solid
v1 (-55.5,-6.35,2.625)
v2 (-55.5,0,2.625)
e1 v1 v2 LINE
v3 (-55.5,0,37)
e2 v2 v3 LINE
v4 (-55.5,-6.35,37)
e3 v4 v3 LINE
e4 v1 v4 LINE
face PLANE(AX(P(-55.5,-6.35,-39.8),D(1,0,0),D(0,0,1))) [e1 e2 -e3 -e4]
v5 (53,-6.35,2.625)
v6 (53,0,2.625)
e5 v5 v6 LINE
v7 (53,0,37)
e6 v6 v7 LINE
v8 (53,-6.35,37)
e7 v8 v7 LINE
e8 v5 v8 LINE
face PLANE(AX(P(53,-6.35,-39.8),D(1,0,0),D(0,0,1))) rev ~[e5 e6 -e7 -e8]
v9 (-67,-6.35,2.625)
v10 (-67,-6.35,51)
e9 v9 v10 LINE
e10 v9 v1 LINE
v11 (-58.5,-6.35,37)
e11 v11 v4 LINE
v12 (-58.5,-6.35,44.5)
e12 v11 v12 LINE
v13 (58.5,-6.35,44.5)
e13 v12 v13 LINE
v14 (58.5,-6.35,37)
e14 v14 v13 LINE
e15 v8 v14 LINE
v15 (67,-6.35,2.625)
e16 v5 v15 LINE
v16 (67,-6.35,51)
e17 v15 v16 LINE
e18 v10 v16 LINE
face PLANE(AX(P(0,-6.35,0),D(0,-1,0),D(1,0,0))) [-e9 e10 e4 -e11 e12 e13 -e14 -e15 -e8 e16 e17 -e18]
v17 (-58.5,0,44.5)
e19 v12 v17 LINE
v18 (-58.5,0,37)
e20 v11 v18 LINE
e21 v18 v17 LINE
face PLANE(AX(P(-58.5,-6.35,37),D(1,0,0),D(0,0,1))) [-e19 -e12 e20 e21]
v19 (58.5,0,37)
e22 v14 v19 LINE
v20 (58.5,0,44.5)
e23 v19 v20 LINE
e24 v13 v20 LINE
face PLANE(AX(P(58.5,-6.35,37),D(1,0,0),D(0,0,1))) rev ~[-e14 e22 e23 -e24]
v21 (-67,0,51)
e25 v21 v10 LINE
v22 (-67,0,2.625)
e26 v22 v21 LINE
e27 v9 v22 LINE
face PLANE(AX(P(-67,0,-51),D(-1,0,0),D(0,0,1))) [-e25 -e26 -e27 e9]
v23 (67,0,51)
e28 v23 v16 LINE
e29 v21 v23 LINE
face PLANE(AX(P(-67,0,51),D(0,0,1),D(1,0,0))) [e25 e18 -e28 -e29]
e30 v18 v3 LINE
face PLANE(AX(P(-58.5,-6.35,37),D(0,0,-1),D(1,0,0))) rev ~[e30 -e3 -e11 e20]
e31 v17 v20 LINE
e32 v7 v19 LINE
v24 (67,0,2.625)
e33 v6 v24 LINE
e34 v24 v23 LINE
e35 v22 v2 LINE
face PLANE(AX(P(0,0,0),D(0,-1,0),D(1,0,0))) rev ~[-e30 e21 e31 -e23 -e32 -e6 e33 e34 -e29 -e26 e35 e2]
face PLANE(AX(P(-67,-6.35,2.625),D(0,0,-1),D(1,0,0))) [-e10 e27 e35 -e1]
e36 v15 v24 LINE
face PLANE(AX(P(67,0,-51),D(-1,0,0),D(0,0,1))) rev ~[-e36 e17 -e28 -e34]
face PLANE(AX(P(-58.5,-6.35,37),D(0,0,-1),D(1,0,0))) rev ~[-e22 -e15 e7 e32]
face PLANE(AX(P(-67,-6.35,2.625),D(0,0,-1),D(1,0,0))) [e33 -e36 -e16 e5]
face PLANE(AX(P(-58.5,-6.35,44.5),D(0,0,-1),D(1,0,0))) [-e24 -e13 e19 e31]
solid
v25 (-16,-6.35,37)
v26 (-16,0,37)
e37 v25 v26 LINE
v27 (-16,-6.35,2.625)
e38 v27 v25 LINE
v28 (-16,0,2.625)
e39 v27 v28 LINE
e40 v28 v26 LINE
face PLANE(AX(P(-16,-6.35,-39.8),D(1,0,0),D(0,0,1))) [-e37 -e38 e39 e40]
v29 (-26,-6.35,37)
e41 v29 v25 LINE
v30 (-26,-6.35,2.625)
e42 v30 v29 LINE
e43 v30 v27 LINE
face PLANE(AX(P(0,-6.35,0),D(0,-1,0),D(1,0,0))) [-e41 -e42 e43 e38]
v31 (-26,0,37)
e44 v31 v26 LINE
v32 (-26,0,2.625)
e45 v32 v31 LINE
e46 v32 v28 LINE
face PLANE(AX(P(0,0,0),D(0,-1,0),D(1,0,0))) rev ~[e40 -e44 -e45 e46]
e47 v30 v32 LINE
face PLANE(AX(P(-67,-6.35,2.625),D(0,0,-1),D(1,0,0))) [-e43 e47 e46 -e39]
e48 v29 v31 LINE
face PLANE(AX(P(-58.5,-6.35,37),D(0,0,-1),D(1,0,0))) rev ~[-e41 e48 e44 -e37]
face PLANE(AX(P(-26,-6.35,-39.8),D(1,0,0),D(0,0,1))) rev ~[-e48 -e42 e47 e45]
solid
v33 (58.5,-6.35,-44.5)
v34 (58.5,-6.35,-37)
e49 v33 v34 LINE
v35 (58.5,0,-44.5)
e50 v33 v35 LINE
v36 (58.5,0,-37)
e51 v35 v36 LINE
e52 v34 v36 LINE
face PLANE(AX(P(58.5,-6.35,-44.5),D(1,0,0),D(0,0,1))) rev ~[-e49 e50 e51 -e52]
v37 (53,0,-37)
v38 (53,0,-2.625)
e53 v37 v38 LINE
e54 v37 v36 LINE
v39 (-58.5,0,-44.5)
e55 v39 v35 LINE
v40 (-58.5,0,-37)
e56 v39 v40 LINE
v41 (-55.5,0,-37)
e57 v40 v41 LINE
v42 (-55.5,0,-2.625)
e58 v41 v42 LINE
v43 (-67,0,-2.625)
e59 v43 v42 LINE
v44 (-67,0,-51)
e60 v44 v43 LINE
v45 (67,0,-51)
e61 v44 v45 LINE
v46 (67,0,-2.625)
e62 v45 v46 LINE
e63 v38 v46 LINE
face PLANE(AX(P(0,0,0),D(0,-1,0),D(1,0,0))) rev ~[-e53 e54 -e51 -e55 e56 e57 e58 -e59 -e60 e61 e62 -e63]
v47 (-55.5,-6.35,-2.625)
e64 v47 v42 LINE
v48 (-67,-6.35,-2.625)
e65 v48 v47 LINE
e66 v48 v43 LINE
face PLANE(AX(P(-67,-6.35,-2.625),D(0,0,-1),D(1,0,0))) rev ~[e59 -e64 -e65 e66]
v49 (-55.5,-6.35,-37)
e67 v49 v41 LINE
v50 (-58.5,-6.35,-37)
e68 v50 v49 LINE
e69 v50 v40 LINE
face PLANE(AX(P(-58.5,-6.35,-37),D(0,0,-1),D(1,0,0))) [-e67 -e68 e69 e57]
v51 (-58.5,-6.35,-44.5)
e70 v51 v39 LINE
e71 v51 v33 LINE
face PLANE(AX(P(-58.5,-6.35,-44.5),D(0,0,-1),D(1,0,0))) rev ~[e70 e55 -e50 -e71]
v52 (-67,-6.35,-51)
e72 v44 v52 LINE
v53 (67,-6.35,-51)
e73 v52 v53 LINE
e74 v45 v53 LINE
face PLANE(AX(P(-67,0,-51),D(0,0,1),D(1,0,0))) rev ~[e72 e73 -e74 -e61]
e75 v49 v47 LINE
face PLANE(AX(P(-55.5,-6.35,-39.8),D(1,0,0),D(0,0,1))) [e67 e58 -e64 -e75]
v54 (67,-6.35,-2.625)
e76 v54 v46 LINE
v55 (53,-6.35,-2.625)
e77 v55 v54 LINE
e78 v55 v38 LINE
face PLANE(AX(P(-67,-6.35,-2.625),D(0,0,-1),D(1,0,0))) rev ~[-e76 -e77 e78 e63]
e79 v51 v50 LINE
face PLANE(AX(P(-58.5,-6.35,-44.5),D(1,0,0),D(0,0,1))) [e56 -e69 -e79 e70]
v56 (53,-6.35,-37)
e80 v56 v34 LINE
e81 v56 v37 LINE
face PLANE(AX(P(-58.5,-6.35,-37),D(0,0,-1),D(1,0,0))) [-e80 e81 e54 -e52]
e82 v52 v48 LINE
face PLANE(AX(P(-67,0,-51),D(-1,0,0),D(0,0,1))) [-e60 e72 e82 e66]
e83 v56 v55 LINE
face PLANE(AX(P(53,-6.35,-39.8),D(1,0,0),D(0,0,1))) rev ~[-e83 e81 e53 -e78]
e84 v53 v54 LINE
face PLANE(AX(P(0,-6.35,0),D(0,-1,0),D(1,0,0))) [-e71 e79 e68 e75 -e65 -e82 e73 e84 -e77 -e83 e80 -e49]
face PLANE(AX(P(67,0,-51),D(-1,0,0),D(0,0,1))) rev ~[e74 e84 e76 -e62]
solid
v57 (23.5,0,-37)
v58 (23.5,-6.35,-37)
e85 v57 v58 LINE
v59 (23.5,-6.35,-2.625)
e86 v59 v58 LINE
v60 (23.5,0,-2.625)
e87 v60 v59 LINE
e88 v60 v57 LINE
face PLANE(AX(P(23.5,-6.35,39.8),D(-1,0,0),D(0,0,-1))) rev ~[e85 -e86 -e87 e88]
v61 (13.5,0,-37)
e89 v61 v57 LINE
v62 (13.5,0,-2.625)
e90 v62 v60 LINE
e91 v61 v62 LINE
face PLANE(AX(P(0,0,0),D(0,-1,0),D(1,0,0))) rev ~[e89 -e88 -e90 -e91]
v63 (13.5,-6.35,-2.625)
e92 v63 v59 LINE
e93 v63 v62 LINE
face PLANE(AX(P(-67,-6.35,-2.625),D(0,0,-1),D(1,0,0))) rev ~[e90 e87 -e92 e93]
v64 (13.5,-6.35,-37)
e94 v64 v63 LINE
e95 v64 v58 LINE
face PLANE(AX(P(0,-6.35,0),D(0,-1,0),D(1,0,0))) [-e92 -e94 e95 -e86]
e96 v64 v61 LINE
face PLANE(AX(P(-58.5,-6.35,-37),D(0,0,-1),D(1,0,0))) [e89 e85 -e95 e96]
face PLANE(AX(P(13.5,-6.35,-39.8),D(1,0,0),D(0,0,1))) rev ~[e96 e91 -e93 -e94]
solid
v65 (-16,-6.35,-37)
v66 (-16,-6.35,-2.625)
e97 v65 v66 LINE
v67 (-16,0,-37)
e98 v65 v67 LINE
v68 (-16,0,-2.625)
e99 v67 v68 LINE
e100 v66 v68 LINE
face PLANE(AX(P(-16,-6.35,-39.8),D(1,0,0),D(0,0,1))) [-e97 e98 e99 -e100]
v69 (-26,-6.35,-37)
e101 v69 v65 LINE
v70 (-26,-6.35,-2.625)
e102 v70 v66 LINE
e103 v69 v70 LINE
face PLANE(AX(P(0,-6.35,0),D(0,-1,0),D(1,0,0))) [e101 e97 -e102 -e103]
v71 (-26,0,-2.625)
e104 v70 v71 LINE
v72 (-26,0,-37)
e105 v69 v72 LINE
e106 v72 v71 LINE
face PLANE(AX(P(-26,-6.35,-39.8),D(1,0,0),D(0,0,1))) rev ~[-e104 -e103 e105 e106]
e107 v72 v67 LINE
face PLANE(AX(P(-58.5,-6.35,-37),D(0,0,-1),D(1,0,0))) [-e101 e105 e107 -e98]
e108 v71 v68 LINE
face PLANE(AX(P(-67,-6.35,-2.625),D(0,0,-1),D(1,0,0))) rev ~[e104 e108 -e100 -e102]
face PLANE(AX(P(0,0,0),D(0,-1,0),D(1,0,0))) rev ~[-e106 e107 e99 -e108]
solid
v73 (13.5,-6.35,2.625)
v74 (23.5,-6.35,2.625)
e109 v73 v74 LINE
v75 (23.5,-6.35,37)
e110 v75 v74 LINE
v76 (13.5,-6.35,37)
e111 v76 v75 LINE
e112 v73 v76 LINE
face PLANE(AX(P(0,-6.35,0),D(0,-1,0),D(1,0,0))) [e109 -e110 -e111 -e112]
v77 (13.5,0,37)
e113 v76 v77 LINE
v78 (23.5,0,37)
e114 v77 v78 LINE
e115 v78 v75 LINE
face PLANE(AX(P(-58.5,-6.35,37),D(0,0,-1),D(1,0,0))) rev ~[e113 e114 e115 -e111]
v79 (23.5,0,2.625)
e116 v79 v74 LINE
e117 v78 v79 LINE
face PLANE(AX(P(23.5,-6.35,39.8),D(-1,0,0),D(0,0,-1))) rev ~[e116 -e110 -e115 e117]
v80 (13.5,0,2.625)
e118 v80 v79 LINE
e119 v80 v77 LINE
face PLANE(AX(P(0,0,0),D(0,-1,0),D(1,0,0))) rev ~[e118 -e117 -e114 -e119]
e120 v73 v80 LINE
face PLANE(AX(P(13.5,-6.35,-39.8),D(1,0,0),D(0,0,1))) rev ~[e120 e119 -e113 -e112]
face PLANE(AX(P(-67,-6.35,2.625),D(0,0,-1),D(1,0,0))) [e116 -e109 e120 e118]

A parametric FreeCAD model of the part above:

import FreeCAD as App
import Part
import Sketcher
from FreeCAD import Vector
Q = App.Units.Quantity

doc = App.newDocument("Part")
body = doc.addObject("PartDesign::Body", "Body")
body.AllowCompound = True

# Sketch on XZ plane
sketch1 = body.newObject("Sketcher::SketchObject", "Sketch")
sketch1.AttachmentSupport = (doc.getObject("XZ_Plane"), [""])
sketch1.MapMode = "FlatFace"
sketch1.addGeometry(Part.LineSegment(Vector(-67, 51, 0), Vector(-67, -51, 0)), False)
sketch1.addGeometry(Part.LineSegment(Vector(-67, -51, 0), Vector(67, -51, 0)), False)
sketch1.addGeometry(Part.LineSegment(Vector(67, -51, 0), Vector(67, 51, 0)), False)
sketch1.addGeometry(Part.LineSegment(Vector(67, 51, 0), Vector(-67, 51, 0)), False)
sketch1.addConstraint(Sketcher.Constraint("Coincident", 0, 2, 1, 1))
sketch1.addConstraint(Sketcher.Constraint("Coincident", 1, 2, 2, 1))
sketch1.addConstraint(Sketcher.Constraint("Coincident", 2, 2, 3, 1))
sketch1.addConstraint(Sketcher.Constraint("Coincident", 3, 2, 0, 1))
sketch1.addConstraint(Sketcher.Constraint("Vertical", 0))
sketch1.addConstraint(Sketcher.Constraint("Horizontal", 1))
sketch1.addConstraint(Sketcher.Constraint("Vertical", 2))
sketch1.addConstraint(Sketcher.Constraint("Horizontal", 3))
sketch1.addConstraint(Sketcher.Constraint("Symmetric", 0, 2, 2, 2, -1, 1))
sketch1.addConstraint(Sketcher.Constraint("DistanceX", 1, 1, 1, 2, Q("134 mm")))
sketch1.addConstraint(Sketcher.Constraint("DistanceY", 0, 2, 0, 1, Q("102 mm")))
pad1 = body.newObject("PartDesign::Pad", "Pad")
pad1.Profile = sketch1
pad1.Length = 6.35

# Sketch on XZ plane
sketch2 = body.newObject("Sketcher::SketchObject", "Sketch001")
sketch2.AttachmentSupport = (doc.getObject("XZ_Plane"), [""])
sketch2.MapMode = "FlatFace"
sketch2.AttachmentOffset = App.Placement(Vector(0, 0, 6.35), App.Rotation())
sketch2.addGeometry(Part.LineSegment(Vector(-16, 39.8, 0), Vector(-16, -39.8, 0)), False)
sketch2.addGeometry(Part.LineSegment(Vector(-16, -39.8, 0), Vector(13.5, -39.8, 0)), False)
sketch2.addGeometry(Part.LineSegment(Vector(13.5, -39.8, 0), Vector(13.5, 39.8, 0)), False)
sketch2.addGeometry(Part.LineSegment(Vector(13.5, 39.8, 0), Vector(-16, 39.8, 0)), False)
sketch2.addGeometry(Part.LineSegment(Vector(53, 39.8, 0), Vector(23.5, 39.8, 0)), False)
sketch2.addGeometry(Part.LineSegment(Vector(23.5, 39.8, 0), Vector(23.5, -39.8, 0)), False)
sketch2.addGeometry(Part.LineSegment(Vector(23.5, -39.8, 0), Vector(53, -39.8, 0)), False)
sketch2.addGeometry(Part.LineSegment(Vector(53, -39.8, 0), Vector(53, 39.8, 0)), False)
sketch2.addGeometry(Part.LineSegment(Vector(-55.5, 39.8, 0), Vector(-55.5, -39.8, 0)), False)
sketch2.addGeometry(Part.LineSegment(Vector(-55.5, -39.8, 0), Vector(-26, -39.8, 0)), False)
sketch2.addGeometry(Part.LineSegment(Vector(-26, -39.8, 0), Vector(-26, 39.8, 0)), False)
sketch2.addGeometry(Part.LineSegment(Vector(-26, 39.8, 0), Vector(-55.5, 39.8, 0)), False)
sketch2.addConstraint(Sketcher.Constraint("Coincident", 0, 2, 1, 1))
sketch2.addConstraint(Sketcher.Constraint("Coincident", 1, 2, 2, 1))
sketch2.addConstraint(Sketcher.Constraint("Coincident", 2, 2, 3, 1))
sketch2.addConstraint(Sketcher.Constraint("Coincident", 3, 2, 0, 1))
sketch2.addConstraint(Sketcher.Constraint("Coincident", 4, 2, 5, 1))
sketch2.addConstraint(Sketcher.Constraint("Coincident", 5, 2, 6, 1))
sketch2.addConstraint(Sketcher.Constraint("Coincident", 6, 2, 7, 1))
sketch2.addConstraint(Sketcher.Constraint("Coincident", 7, 2, 4, 1))
sketch2.addConstraint(Sketcher.Constraint("Coincident", 8, 2, 9, 1))
sketch2.addConstraint(Sketcher.Constraint("Coincident", 9, 2, 10, 1))
sketch2.addConstraint(Sketcher.Constraint("Coincident", 10, 2, 11, 1))
sketch2.addConstraint(Sketcher.Constraint("Coincident", 11, 2, 8, 1))
sketch2.addConstraint(Sketcher.Constraint("Vertical", 0))
sketch2.addConstraint(Sketcher.Constraint("Horizontal", 1))
sketch2.addConstraint(Sketcher.Constraint("Vertical", 2))
sketch2.addConstraint(Sketcher.Constraint("Horizontal", 3))
sketch2.addConstraint(Sketcher.Constraint("Horizontal", 4))
sketch2.addConstraint(Sketcher.Constraint("Vertical", 5))
sketch2.addConstraint(Sketcher.Constraint("Horizontal", 6))
sketch2.addConstraint(Sketcher.Constraint("Vertical", 7))
sketch2.addConstraint(Sketcher.Constraint("Vertical", 8))
sketch2.addConstraint(Sketcher.Constraint("Horizontal", 9))
sketch2.addConstraint(Sketcher.Constraint("Vertical", 10))
sketch2.addConstraint(Sketcher.Constraint("Horizontal", 11))
sketch2.addConstraint(Sketcher.Constraint("Horizontal", 3, 2, 4, 2))
sketch2.addConstraint(Sketcher.Constraint("Horizontal", 1, 2, 5, 2))
sketch2.addConstraint(Sketcher.Constraint("Horizontal", 6, 2, 8, 2))
sketch2.addConstraint(Sketcher.Constraint("Horizontal", 7, 2, 10, 2))
sketch2.addConstraint(Sketcher.Constraint("Equal", 3, 4))
sketch2.addConstraint(Sketcher.Constraint("Equal", 6, 9))
sketch2.addConstraint(Sketcher.Constraint("DistanceX", 1, 1, 1, 2, Q("29.5 mm")))
sketch2.addConstraint(Sketcher.Constraint("DistanceY", 0, 2, 0, 1, Q("79.6 mm")))
sketch2.addConstraint(Sketcher.Constraint("DistanceX", 0, 2, -1, 1, Q("16 mm")))
sketch2.addConstraint(Sketcher.Constraint("DistanceX", -1, 1, 6, 2, Q("53 mm")))
sketch2.addConstraint(Sketcher.Constraint("DistanceX", 9, 2, -1, 1, Q("26 mm")))
sketch2.addConstraint(Sketcher.Constraint("DistanceY", 0, 2, -1, 1, Q("39.8 mm")))
pocket1 = body.newObject("PartDesign::Pocket", "Pocket")
pocket1.Profile = sketch2
pocket1.Length = 12.7

# Sketch on XZ plane
sketch3 = body.newObject("Sketcher::SketchObject", "Sketch002")
sketch3.AttachmentSupport = (doc.getObject("XZ_Plane"), [""])
sketch3.MapMode = "FlatFace"
sketch3.AttachmentOffset = App.Placement(Vector(0, 0, 6.35), App.Rotation())
sketch3.addGeometry(Part.LineSegment(Vector(-58.5, 44.5, 0), Vector(-58.5, 37, 0)), False)
sketch3.addGeometry(Part.LineSegment(Vector(-58.5, 37, 0), Vector(58.5, 37, 0)), False)
sketch3.addGeometry(Part.LineSegment(Vector(58.5, 37, 0), Vector(58.5, 44.5, 0)), False)
sketch3.addGeometry(Part.LineSegment(Vector(58.5, 44.5, 0), Vector(-58.5, 44.5, 0)), False)
sketch3.addGeometry(Part.LineSegment(Vector(-67, 2.625, 0), Vector(-67, -2.625, 0)), False)
sketch3.addGeometry(Part.LineSegment(Vector(-67, -2.625, 0), Vector(67, -2.625, 0)), False)
sketch3.addGeometry(Part.LineSegment(Vector(67, -2.625, 0), Vector(67, 2.625, 0)), False)
sketch3.addGeometry(Part.LineSegment(Vector(67, 2.625, 0), Vector(-67, 2.625, 0)), False)
sketch3.addGeometry(Part.LineSegment(Vector(-58.5, -37, 0), Vector(-58.5, -44.5, 0)), False)
sketch3.addGeometry(Part.LineSegment(Vector(-58.5, -44.5, 0), Vector(58.5, -44.5, 0)), False)
sketch3.addGeometry(Part.LineSegment(Vector(58.5, -44.5, 0), Vector(58.5, -37, 0)), False)
sketch3.addGeometry(Part.LineSegment(Vector(58.5, -37, 0), Vector(-58.5, -37, 0)), False)
sketch3.addConstraint(Sketcher.Constraint("Coincident", 0, 2, 1, 1))
sketch3.addConstraint(Sketcher.Constraint("Coincident", 1, 2, 2, 1))
sketch3.addConstraint(Sketcher.Constraint("Coincident", 2, 2, 3, 1))
sketch3.addConstraint(Sketcher.Constraint("Coincident", 3, 2, 0, 1))
sketch3.addConstraint(Sketcher.Constraint("Coincident", 4, 2, 5, 1))
sketch3.addConstraint(Sketcher.Constraint("Coincident", 5, 2, 6, 1))
sketch3.addConstraint(Sketcher.Constraint("Coincident", 6, 2, 7, 1))
sketch3.addConstraint(Sketcher.Constraint("Coincident", 7, 2, 4, 1))
sketch3.addConstraint(Sketcher.Constraint("Coincident", 8, 2, 9, 1))
sketch3.addConstraint(Sketcher.Constraint("Coincident", 9, 2, 10, 1))
sketch3.addConstraint(Sketcher.Constraint("Coincident", 10, 2, 11, 1))
sketch3.addConstraint(Sketcher.Constraint("Coincident", 11, 2, 8, 1))
sketch3.addConstraint(Sketcher.Constraint("Vertical", 0))
sketch3.addConstraint(Sketcher.Constraint("Horizontal", 1))
sketch3.addConstraint(Sketcher.Constraint("Vertical", 2))
sketch3.addConstraint(Sketcher.Constraint("Horizontal", 3))
sketch3.addConstraint(Sketcher.Constraint("Vertical", 4))
sketch3.addConstraint(Sketcher.Constraint("Horizontal", 5))
sketch3.addConstraint(Sketcher.Constraint("Vertical", 6))
sketch3.addConstraint(Sketcher.Constraint("Horizontal", 7))
sketch3.addConstraint(Sketcher.Constraint("Vertical", 8))
sketch3.addConstraint(Sketcher.Constraint("Horizontal", 9))
sketch3.addConstraint(Sketcher.Constraint("Vertical", 10))
sketch3.addConstraint(Sketcher.Constraint("Horizontal", 11))
sketch3.addConstraint(Sketcher.Constraint("Symmetric", 4, 2, 6, 2, -1, 1))
sketch3.addConstraint(Sketcher.Constraint("Symmetric", 2, 2, 8, 2, -1, 1))
sketch3.addConstraint(Sketcher.Constraint("Symmetric", 0, 2, 10, 2, -1, 1))
sketch3.addConstraint(Sketcher.Constraint("Vertical", 3, 2, 8, 2))
sketch3.addConstraint(Sketcher.Constraint("DistanceX", 1, 1, 1, 2, Q("117 mm")))
sketch3.addConstraint(Sketcher.Constraint("DistanceX", 5, 1, 5, 2, Q("134 mm")))
sketch3.addConstraint(Sketcher.Constraint("DistanceY", 0, 2, 0, 1, Q("7.5 mm")))
sketch3.addConstraint(Sketcher.Constraint("DistanceY", -1, 1, 0, 2, Q("37 mm")))
sketch3.addConstraint(Sketcher.Constraint("DistanceY", 4, 2, 4, 1, Q("5.25 mm")))
pocket2 = body.newObject("PartDesign::Pocket", "Pocket001")
pocket2.Profile = sketch3
pocket2.Length = 6.35

doc.recompute()
